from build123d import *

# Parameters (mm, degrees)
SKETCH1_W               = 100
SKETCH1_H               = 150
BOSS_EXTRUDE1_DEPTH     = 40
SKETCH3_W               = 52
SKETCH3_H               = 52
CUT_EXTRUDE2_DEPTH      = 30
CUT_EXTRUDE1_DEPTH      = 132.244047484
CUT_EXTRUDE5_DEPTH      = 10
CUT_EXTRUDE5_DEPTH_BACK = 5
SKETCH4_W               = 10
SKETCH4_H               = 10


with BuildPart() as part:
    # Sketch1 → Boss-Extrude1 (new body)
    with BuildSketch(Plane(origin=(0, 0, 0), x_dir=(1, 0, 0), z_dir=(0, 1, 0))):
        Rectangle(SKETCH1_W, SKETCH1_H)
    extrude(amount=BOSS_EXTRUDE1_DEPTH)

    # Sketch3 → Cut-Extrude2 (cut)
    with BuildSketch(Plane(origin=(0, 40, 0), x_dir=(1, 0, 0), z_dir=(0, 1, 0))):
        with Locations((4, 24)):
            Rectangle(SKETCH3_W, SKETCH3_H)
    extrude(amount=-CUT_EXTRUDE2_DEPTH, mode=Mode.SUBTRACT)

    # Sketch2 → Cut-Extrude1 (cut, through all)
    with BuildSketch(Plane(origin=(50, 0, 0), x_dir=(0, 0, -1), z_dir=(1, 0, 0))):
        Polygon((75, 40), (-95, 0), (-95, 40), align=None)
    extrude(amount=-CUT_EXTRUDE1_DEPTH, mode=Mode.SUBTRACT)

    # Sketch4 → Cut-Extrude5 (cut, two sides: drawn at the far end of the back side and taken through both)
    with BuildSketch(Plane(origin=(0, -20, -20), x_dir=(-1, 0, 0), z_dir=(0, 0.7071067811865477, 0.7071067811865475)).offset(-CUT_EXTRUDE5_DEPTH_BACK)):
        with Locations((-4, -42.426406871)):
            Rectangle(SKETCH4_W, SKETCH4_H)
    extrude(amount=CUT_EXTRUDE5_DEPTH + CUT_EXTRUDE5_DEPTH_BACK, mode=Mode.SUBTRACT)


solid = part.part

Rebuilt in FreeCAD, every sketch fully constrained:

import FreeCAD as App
import Part
import Sketcher
Q = App.Units.Quantity

doc = App.newDocument("Part")
body = doc.addObject("PartDesign::Body", "Body")

sketch1 = body.newObject("Sketcher::SketchObject", "Sketch")
sketch1.AttachmentSupport = (doc.getObject("XZ_Plane"), [""])
sketch1.MapMode = "FlatFace"
sketch1.addGeometry(Part.LineSegment(App.Vector(-50, -75, 0), App.Vector(-50, 75, 0)), False)
sketch1.addGeometry(Part.LineSegment(App.Vector(-50, 75, 0), App.Vector(50, 75, 0)), False)
sketch1.addGeometry(Part.LineSegment(App.Vector(50, 75, 0), App.Vector(50, -75, 0)), False)
sketch1.addGeometry(Part.LineSegment(App.Vector(50, -75, 0), App.Vector(-50, -75, 0)), False)
sketch1.addConstraint(Sketcher.Constraint("Coincident", 0, 2, 1, 1))
sketch1.addConstraint(Sketcher.Constraint("Coincident", 1, 2, 2, 1))
sketch1.addConstraint(Sketcher.Constraint("Coincident", 2, 2, 3, 1))
sketch1.addConstraint(Sketcher.Constraint("Coincident", 3, 2, 0, 1))
sketch1.addConstraint(Sketcher.Constraint("Vertical", 0))
sketch1.addConstraint(Sketcher.Constraint("Horizontal", 1))
sketch1.addConstraint(Sketcher.Constraint("Vertical", 2))
sketch1.addConstraint(Sketcher.Constraint("Horizontal", 3))
sketch1.addConstraint(Sketcher.Constraint("Symmetric", 0, 2, 2, 2, -1, 1))
sketch1.addConstraint(Sketcher.Constraint("DistanceX", 1, 1, 1, 2, Q("100 mm")))
sketch1.addConstraint(Sketcher.Constraint("DistanceY", 0, 1, 0, 2, Q("150 mm")))
pad1 = body.newObject("PartDesign::Pad", "Pad")
pad1.Profile = sketch1
pad1.Length = 40
pad1.Reversed = True

sketch2 = body.newObject("Sketcher::SketchObject", "Sketch001")
sketch2.AttachmentSupport = (doc.getObject("XZ_Plane"), [""])
sketch2.MapMode = "FlatFace"
sketch2.AttachmentOffset = App.Placement(App.Vector(0, 0, -40), App.Rotation())
sketch2.addGeometry(Part.LineSegment(App.Vector(-22, -50, 0), App.Vector(-22, 2, 0)), False)
sketch2.addGeometry(Part.LineSegment(App.Vector(-22, 2, 0), App.Vector(30, 2, 0)), False)
sketch2.addGeometry(Part.LineSegment(App.Vector(30, 2, 0), App.Vector(30, -50, 0)), False)
sketch2.addGeometry(Part.LineSegment(App.Vector(30, -50, 0), App.Vector(-22, -50, 0)), False)
sketch2.addConstraint(Sketcher.Constraint("Coincident", 0, 2, 1, 1))
sketch2.addConstraint(Sketcher.Constraint("Coincident", 1, 2, 2, 1))
sketch2.addConstraint(Sketcher.Constraint("Coincident", 2, 2, 3, 1))
sketch2.addConstraint(Sketcher.Constraint("Coincident", 3, 2, 0, 1))
sketch2.addConstraint(Sketcher.Constraint("Vertical", 0))
sketch2.addConstraint(Sketcher.Constraint("Horizontal", 1))
sketch2.addConstraint(Sketcher.Constraint("Vertical", 2))
sketch2.addConstraint(Sketcher.Constraint("Horizontal", 3))
sketch2.addConstraint(Sketcher.Constraint("Equal", 3, 0))
sketch2.addConstraint(Sketcher.Constraint("DistanceX", 1, 1, 1, 2, Q("52 mm")))
sketch2.addConstraint(Sketcher.Constraint("DistanceX", 0, 2, -1, 1, Q("22 mm")))
sketch2.addConstraint(Sketcher.Constraint("DistanceY", -1, 1, 0, 2, Q("2 mm")))
pocket1 = body.newObject("PartDesign::Pocket", "Pocket")
pocket1.Profile = sketch2
pocket1.Length = 30
pocket1.Reversed = True

sketch3 = body.newObject("Sketcher::SketchObject", "Sketch002")
sketch3.AttachmentSupport = (doc.getObject("YZ_Plane"), [""])
sketch3.MapMode = "FlatFace"
sketch3.AttachmentOffset = App.Placement(App.Vector(0, 0, 50), App.Rotation())
sketch3.addGeometry(Part.LineSegment(App.Vector(0, 95, 0), App.Vector(40, -75, 0)), False)
sketch3.addGeometry(Part.LineSegment(App.Vector(40, -75, 0), App.Vector(40, 95, 0)), False)
sketch3.addGeometry(Part.LineSegment(App.Vector(40, 95, 0), App.Vector(0, 95, 0)), False)
sketch3.addConstraint(Sketcher.Constraint("Coincident", 0, 2, 1, 1))
sketch3.addConstraint(Sketcher.Constraint("Coincident", 1, 2, 2, 1))
sketch3.addConstraint(Sketcher.Constraint("Coincident", 2, 2, 0, 1))
sketch3.addConstraint(Sketcher.Constraint("Vertical", 1))
sketch3.addConstraint(Sketcher.Constraint("Horizontal", 2))
sketch3.addConstraint(Sketcher.Constraint("PointOnObject", 2, 2, -2))
sketch3.addConstraint(Sketcher.Constraint("DistanceX", 2, 2, 2, 1, Q("40 mm")))
sketch3.addConstraint(Sketcher.Constraint("DistanceY", 1, 1, 1, 2, Q("170 mm")))
sketch3.addConstraint(Sketcher.Constraint("DistanceY", 0, 2, -1, 1, Q("75 mm")))
pocket2 = body.newObject("PartDesign::Pocket", "Pocket001")
pocket2.Profile = sketch3
pocket2.Type = "ThroughAll"

sketch4 = body.newObject("Sketcher::SketchObject", "Sketch003")
sketch4.Placement = App.Placement(App.Vector(0, -20, -20), App.Rotation(App.Vector(-1, 0, 0), App.Vector(0, -0.707106781, 0.707106781), App.Vector(0, 0.707106781, 0.707106781), "ZXY"))
sketch4.addGeometry(Part.LineSegment(App.Vector(-9, -37, 0), App.Vector(-9, -47, 0)), False)
sketch4.addGeometry(Part.LineSegment(App.Vector(-9, -47, 0), App.Vector(1, -47, 0)), False)
sketch4.addGeometry(Part.LineSegment(App.Vector(1, -47, 0), App.Vector(1, -37, 0)), False)
sketch4.addGeometry(Part.LineSegment(App.Vector(1, -37, 0), App.Vector(-9, -37, 0)), False)
sketch4.addConstraint(Sketcher.Constraint("Coincident", 0, 2, 1, 1))
sketch4.addConstraint(Sketcher.Constraint("Coincident", 1, 2, 2, 1))
sketch4.addConstraint(Sketcher.Constraint("Coincident", 2, 2, 3, 1))
sketch4.addConstraint(Sketcher.Constraint("Coincident", 3, 2, 0, 1))
sketch4.addConstraint(Sketcher.Constraint("Vertical", 0))
sketch4.addConstraint(Sketcher.Constraint("Horizontal", 1))
sketch4.addConstraint(Sketcher.Constraint("Vertical", 2))
sketch4.addConstraint(Sketcher.Constraint("Horizontal", 3))
sketch4.addConstraint(Sketcher.Constraint("Equal", 3, 0))
sketch4.addConstraint(Sketcher.Constraint("DistanceX", 1, 1, 1, 2, Q("10 mm")))
sketch4.addConstraint(Sketcher.Constraint("DistanceX", 0, 2, -1, 1, Q("9 mm")))
sketch4.addConstraint(Sketcher.Constraint("DistanceY", 0, 2, -1, 1, Q("47.426407 mm")))
pocket3 = body.newObject("PartDesign::Pocket", "Pocket002")
pocket3.Profile = sketch4
pocket3.Type = "TwoLengths"
pocket3.Length = 10
pocket3.Length2 = 5
pocket3.Reversed = True

doc.recompute()
